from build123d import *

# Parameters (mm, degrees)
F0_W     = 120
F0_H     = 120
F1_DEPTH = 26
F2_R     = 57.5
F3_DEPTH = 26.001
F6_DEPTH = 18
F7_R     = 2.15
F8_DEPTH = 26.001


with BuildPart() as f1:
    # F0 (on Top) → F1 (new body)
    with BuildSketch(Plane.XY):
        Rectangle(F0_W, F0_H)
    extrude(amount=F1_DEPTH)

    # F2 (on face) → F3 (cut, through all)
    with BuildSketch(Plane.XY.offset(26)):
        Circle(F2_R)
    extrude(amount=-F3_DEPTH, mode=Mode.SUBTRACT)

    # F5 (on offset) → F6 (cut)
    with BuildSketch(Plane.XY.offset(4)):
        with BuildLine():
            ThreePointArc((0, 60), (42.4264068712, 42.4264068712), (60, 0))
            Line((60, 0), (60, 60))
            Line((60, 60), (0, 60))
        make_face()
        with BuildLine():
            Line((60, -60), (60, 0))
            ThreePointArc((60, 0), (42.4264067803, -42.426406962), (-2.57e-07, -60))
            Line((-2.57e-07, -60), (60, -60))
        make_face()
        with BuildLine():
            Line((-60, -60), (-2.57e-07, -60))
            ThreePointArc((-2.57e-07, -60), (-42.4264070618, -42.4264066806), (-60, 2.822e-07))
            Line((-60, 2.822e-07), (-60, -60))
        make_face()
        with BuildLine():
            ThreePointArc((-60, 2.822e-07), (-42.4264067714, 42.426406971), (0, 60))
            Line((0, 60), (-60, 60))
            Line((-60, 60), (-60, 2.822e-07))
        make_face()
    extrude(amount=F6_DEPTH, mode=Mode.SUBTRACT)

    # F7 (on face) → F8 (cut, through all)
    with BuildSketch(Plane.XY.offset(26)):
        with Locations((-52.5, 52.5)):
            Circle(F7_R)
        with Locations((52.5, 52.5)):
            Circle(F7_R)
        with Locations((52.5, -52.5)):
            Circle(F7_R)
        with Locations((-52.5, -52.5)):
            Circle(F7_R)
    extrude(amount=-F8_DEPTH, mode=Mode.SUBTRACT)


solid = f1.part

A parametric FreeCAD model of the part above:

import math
import FreeCAD as App
import Part
import Sketcher

doc = App.newDocument("Part")
body = doc.addObject("PartDesign::Body", "Body")

sketch1 = doc.addObject("Sketcher::SketchObject", "Sketch")
body.addObject(sketch1)
sketch1.AttachmentSupport = (doc.XY_Plane, [""])
sketch1.MapMode = "FlatFace"
sketch1.addGeometry([
    Part.LineSegment(App.Vector(-60, 60, 0), App.Vector(-60, -60, 0)),
    Part.LineSegment(App.Vector(-60, -60, 0), App.Vector(60, -60, 0)),
    Part.LineSegment(App.Vector(60, -60, 0), App.Vector(60, 60, 0)),
    Part.LineSegment(App.Vector(60, 60, 0), App.Vector(-60, 60, 0)),
], False)
sketch1.addConstraint([
    Sketcher.Constraint("Coincident", 0, 2, 1, 1),
    Sketcher.Constraint("Coincident", 1, 2, 2, 1),
    Sketcher.Constraint("Coincident", 2, 2, 3, 1),
    Sketcher.Constraint("Coincident", 3, 2, 0, 1),
    Sketcher.Constraint("Vertical", 0),
    Sketcher.Constraint("Horizontal", 1),
    Sketcher.Constraint("Vertical", 2),
    Sketcher.Constraint("Horizontal", 3),
    Sketcher.Constraint("Symmetric", 0, 2, 2, 2, -1, 1),
    Sketcher.Constraint("Equal", 3, 0),
    Sketcher.Constraint("DistanceX", 1, 1, 1, 2, 120.0),
])
pad1 = doc.addObject("PartDesign::Pad", "Pad")
body.addObject(pad1)
pad1.Profile = sketch1
pad1.Length = 26

sketch2 = doc.addObject("Sketcher::SketchObject", "Sketch001")
body.addObject(sketch2)
sketch2.AttachmentSupport = (doc.XY_Plane, [""])
sketch2.MapMode = "FlatFace"
sketch2.AttachmentOffset = App.Placement(App.Vector(0, 0, 26), App.Rotation())
sketch2.addGeometry(Part.Circle(App.Vector(0, 0, 0), App.Vector(0, 0, 1), 57.5), False)
sketch2.addConstraint([
    Sketcher.Constraint("Coincident", 0, 3, -1, 1),
    Sketcher.Constraint("Diameter", 0, 115.0),
])
pocket1 = doc.addObject("PartDesign::Pocket", "Pocket")
body.addObject(pocket1)
pocket1.Profile = sketch2
pocket1.Type = "ThroughAll"

sketch3 = doc.addObject("Sketcher::SketchObject", "Sketch002")
body.addObject(sketch3)
sketch3.AttachmentSupport = (doc.XY_Plane, [""])
sketch3.MapMode = "FlatFace"
sketch3.AttachmentOffset = App.Placement(App.Vector(0, 0, 4), App.Rotation())
sketch3.addGeometry([
    Part.ArcOfCircle(Part.Circle(App.Vector(0, 0, 0), App.Vector(0, 0, 1), 60), math.radians(0), math.radians(90)),
    Part.LineSegment(App.Vector(60, 0, 0), App.Vector(60, 60, 0)),
    Part.LineSegment(App.Vector(60, 60, 0), App.Vector(0, 60, 0)),
    Part.LineSegment(App.Vector(60, -60, 0), App.Vector(60, 0, 0)),
    Part.ArcOfCircle(Part.Circle(App.Vector(0, 0, 0), App.Vector(0, 0, 1), 60), math.radians(-90), math.radians(0)),
    Part.LineSegment(App.Vector(0, -60, 0), App.Vector(60, -60, 0)),
    Part.LineSegment(App.Vector(-60, -60, 0), App.Vector(0, -60, 0)),
    Part.ArcOfCircle(Part.Circle(App.Vector(0, 0, 0), App.Vector(0, 0, 1), 60), math.radians(180), math.radians(270)),
    Part.LineSegment(App.Vector(-60, 0, 0), App.Vector(-60, -60, 0)),
    Part.ArcOfCircle(Part.Circle(App.Vector(0, 0, 0), App.Vector(0, 0, 1), 60), math.radians(90), math.radians(180)),
    Part.LineSegment(App.Vector(0, 60, 0), App.Vector(-60, 60, 0)),
    Part.LineSegment(App.Vector(-60, 60, 0), App.Vector(-60, 0, 0)),
], False)
sketch3.addConstraint([
    Sketcher.Constraint("Tangent", 0, 1, 1, 1),
    Sketcher.Constraint("Coincident", 1, 2, 2, 1),
    Sketcher.Constraint("Tangent", 2, 2, 0, 2),
    Sketcher.Constraint("Tangent", 3, 2, 4, 2),
    Sketcher.Constraint("Tangent", 4, 1, 5, 1),
    Sketcher.Constraint("Coincident", 5, 2, 3, 1),
    Sketcher.Constraint("Tangent", 6, 2, 7, 2),
    Sketcher.Constraint("Tangent", 7, 1, 8, 1),
    Sketcher.Constraint("Coincident", 8, 2, 6, 1),
    Sketcher.Constraint("Tangent", 9, 1, 10, 1),
    Sketcher.Constraint("Coincident", 10, 2, 11, 1),
    Sketcher.Constraint("Tangent", 11, 2, 9, 2),
    Sketcher.Constraint("Vertical", 1),
    Sketcher.Constraint("Horizontal", 2),
    Sketcher.Constraint("Vertical", 3),
    Sketcher.Constraint("Horizontal", 5),
    Sketcher.Constraint("Horizontal", 6),
    Sketcher.Constraint("Vertical", 8),
    Sketcher.Constraint("Horizontal", 10),
    Sketcher.Constraint("Vertical", 11),
    Sketcher.Constraint("Coincident", 0, 3, -1, 1),
    Sketcher.Constraint("Coincident", 4, 3, -1, 1),
    Sketcher.Constraint("Coincident", 7, 3, -1, 1),
    Sketcher.Constraint("Coincident", 9, 3, -1, 1),
    Sketcher.Constraint("Equal", 0, 4),
    Sketcher.Constraint("Equal", 4, 7),
    Sketcher.Constraint("Equal", 7, 9),
    Sketcher.Constraint("Radius", 0, 60.0),
])
pocket2 = doc.addObject("PartDesign::Pocket", "Pocket001")
body.addObject(pocket2)
pocket2.Profile = sketch3
pocket2.Length = 18
pocket2.Reversed = True

sketch4 = doc.addObject("Sketcher::SketchObject", "Sketch003")
body.addObject(sketch4)
sketch4.AttachmentSupport = (doc.XY_Plane, [""])
sketch4.MapMode = "FlatFace"
sketch4.AttachmentOffset = App.Placement(App.Vector(0, 0, 26), App.Rotation())
sketch4.addGeometry([
    Part.Circle(App.Vector(-52.5, 52.5, 0), App.Vector(0, 0, 1), 2.15),
    Part.Circle(App.Vector(52.5, 52.5, 0), App.Vector(0, 0, 1), 2.15),
    Part.Circle(App.Vector(52.5, -52.5, 0), App.Vector(0, 0, 1), 2.15),
    Part.Circle(App.Vector(-52.5, -52.5, 0), App.Vector(0, 0, 1), 2.15),
], False)
sketch4.addConstraint([
    Sketcher.Constraint("Equal", 0, 1),
    Sketcher.Constraint("Equal", 1, 2),
    Sketcher.Constraint("Equal", 2, 3),
    Sketcher.Constraint("Symmetric", 0, 3, 2, 3, -1, 1),
    Sketcher.Constraint("Symmetric", 1, 3, 3, 3, -1, 1),
    Sketcher.Constraint("Symmetric", 0, 3, 1, 3, -2),
    Sketcher.Constraint("Diameter", 0, 4.3),
    Sketcher.Constraint("DistanceX", 0, 3, 1, 3, 105.0),
    Sketcher.Constraint("DistanceY", 2, 3, 1, 3, 105.0),
])
pocket3 = doc.addObject("PartDesign::Pocket", "Pocket002")
body.addObject(pocket3)
pocket3.Profile = sketch4
pocket3.Type = "ThroughAll"

doc.recompute()
